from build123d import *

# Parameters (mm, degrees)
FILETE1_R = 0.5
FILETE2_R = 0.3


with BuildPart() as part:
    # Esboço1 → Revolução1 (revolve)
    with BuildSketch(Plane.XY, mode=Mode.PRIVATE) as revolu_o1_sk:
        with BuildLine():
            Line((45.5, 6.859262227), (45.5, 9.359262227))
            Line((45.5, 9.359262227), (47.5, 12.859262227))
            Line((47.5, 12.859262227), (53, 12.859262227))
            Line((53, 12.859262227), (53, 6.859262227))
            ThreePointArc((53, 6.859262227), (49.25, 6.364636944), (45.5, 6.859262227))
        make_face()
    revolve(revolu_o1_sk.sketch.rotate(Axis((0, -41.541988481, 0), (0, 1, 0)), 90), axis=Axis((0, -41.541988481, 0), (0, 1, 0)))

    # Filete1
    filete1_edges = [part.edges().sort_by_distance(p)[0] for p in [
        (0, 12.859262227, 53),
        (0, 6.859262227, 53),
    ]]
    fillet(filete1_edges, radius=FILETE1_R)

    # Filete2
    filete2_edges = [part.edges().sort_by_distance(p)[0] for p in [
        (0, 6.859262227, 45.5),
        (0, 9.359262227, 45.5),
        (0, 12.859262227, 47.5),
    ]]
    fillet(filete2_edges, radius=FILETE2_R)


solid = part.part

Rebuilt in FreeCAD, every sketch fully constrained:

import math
import FreeCAD as App
import Part
import Sketcher
from FreeCAD import Vector


def edges_at(feature, points):
    """Names of the edges that pass closest to the given points."""
    edges = feature.Shape.Edges
    near = lambda p: min(range(len(edges)), key=lambda i: edges[i].distToShape(Part.Vertex(*p))[0])
    return sorted({f"Edge{near(p) + 1}" for p in points})

doc = App.newDocument("Part")
body = doc.addObject("PartDesign::Body", "Body")

sketch1 = doc.addObject("Sketcher::SketchObject", "Sketch")
body.addObject(sketch1)
sketch1.AttachmentSupport = (doc.XY_Plane, [""])
sketch1.MapMode = "FlatFace"
sketch1.addGeometry([
    Part.LineSegment(Vector(45.5, 9.4, 0), Vector(45.5, 6.9, 0)),
    Part.ArcOfCircle(Part.Circle(Vector(49.2, 20.8, 0), Vector(0, 0, 1), 14.5), math.radians(-105), math.radians(-75)),
    Part.LineSegment(Vector(53, 6.9, 0), Vector(53, 12.9, 0)),
    Part.LineSegment(Vector(53, 12.9, 0), Vector(47.5, 12.9, 0)),
    Part.LineSegment(Vector(47.5, 12.9, 0), Vector(45.5, 9.4, 0)),
], False)
sketch1.addConstraint([
    Sketcher.Constraint("Coincident", 0, 2, 1, 1),
    Sketcher.Constraint("Coincident", 1, 2, 2, 1),
    Sketcher.Constraint("Coincident", 2, 2, 3, 1),
    Sketcher.Constraint("Coincident", 3, 2, 4, 1),
    Sketcher.Constraint("Coincident", 4, 2, 0, 1),
    Sketcher.Constraint("Vertical", 0),
    Sketcher.Constraint("Vertical", 2),
    Sketcher.Constraint("Horizontal", 3),
    Sketcher.Constraint("Horizontal", 0, 2, 1, 2),
    Sketcher.Constraint("DistanceY", 2, 1, 2, 2, 6.0),
    Sketcher.Constraint("DistanceX", 3, 2, 3, 1, 5.5),
    Sketcher.Constraint("DistanceY", 0, 2, 0, 1, 2.5),
    Sketcher.Constraint("DistanceX", -1, 1, 1, 2, 53.0),
    Sketcher.Constraint("DistanceX", 0, 2, 3, 2, 2.0),
    Sketcher.Constraint("Radius", 1, 14.462619),
    Sketcher.Constraint("DistanceY", -1, 1, 1, 3, 20.827256),
])
revolution = doc.addObject("PartDesign::Revolution", "Revolution")
body.addObject(revolution)
revolution.Profile = sketch1
revolution.ReferenceAxis = (sketch1, ["V_Axis"])
revolution.Angle = 360
doc.recompute()

fillet = doc.addObject("PartDesign::Fillet", "Fillet")
body.addObject(fillet)
fillet.Base = (revolution, edges_at(revolution, [(0, 12.859, 53), (0, 6.859, 53)]))
fillet.Radius = 0.5
doc.recompute()

fillet2 = doc.addObject("PartDesign::Fillet", "Fillet001")
body.addObject(fillet2)
fillet2.Base = (fillet, edges_at(fillet, [(0, 6.859, 45.5), (0, 9.359, 45.5), (0, 12.859, 47.5)]))
fillet2.Radius = 0.3

doc.recompute()
